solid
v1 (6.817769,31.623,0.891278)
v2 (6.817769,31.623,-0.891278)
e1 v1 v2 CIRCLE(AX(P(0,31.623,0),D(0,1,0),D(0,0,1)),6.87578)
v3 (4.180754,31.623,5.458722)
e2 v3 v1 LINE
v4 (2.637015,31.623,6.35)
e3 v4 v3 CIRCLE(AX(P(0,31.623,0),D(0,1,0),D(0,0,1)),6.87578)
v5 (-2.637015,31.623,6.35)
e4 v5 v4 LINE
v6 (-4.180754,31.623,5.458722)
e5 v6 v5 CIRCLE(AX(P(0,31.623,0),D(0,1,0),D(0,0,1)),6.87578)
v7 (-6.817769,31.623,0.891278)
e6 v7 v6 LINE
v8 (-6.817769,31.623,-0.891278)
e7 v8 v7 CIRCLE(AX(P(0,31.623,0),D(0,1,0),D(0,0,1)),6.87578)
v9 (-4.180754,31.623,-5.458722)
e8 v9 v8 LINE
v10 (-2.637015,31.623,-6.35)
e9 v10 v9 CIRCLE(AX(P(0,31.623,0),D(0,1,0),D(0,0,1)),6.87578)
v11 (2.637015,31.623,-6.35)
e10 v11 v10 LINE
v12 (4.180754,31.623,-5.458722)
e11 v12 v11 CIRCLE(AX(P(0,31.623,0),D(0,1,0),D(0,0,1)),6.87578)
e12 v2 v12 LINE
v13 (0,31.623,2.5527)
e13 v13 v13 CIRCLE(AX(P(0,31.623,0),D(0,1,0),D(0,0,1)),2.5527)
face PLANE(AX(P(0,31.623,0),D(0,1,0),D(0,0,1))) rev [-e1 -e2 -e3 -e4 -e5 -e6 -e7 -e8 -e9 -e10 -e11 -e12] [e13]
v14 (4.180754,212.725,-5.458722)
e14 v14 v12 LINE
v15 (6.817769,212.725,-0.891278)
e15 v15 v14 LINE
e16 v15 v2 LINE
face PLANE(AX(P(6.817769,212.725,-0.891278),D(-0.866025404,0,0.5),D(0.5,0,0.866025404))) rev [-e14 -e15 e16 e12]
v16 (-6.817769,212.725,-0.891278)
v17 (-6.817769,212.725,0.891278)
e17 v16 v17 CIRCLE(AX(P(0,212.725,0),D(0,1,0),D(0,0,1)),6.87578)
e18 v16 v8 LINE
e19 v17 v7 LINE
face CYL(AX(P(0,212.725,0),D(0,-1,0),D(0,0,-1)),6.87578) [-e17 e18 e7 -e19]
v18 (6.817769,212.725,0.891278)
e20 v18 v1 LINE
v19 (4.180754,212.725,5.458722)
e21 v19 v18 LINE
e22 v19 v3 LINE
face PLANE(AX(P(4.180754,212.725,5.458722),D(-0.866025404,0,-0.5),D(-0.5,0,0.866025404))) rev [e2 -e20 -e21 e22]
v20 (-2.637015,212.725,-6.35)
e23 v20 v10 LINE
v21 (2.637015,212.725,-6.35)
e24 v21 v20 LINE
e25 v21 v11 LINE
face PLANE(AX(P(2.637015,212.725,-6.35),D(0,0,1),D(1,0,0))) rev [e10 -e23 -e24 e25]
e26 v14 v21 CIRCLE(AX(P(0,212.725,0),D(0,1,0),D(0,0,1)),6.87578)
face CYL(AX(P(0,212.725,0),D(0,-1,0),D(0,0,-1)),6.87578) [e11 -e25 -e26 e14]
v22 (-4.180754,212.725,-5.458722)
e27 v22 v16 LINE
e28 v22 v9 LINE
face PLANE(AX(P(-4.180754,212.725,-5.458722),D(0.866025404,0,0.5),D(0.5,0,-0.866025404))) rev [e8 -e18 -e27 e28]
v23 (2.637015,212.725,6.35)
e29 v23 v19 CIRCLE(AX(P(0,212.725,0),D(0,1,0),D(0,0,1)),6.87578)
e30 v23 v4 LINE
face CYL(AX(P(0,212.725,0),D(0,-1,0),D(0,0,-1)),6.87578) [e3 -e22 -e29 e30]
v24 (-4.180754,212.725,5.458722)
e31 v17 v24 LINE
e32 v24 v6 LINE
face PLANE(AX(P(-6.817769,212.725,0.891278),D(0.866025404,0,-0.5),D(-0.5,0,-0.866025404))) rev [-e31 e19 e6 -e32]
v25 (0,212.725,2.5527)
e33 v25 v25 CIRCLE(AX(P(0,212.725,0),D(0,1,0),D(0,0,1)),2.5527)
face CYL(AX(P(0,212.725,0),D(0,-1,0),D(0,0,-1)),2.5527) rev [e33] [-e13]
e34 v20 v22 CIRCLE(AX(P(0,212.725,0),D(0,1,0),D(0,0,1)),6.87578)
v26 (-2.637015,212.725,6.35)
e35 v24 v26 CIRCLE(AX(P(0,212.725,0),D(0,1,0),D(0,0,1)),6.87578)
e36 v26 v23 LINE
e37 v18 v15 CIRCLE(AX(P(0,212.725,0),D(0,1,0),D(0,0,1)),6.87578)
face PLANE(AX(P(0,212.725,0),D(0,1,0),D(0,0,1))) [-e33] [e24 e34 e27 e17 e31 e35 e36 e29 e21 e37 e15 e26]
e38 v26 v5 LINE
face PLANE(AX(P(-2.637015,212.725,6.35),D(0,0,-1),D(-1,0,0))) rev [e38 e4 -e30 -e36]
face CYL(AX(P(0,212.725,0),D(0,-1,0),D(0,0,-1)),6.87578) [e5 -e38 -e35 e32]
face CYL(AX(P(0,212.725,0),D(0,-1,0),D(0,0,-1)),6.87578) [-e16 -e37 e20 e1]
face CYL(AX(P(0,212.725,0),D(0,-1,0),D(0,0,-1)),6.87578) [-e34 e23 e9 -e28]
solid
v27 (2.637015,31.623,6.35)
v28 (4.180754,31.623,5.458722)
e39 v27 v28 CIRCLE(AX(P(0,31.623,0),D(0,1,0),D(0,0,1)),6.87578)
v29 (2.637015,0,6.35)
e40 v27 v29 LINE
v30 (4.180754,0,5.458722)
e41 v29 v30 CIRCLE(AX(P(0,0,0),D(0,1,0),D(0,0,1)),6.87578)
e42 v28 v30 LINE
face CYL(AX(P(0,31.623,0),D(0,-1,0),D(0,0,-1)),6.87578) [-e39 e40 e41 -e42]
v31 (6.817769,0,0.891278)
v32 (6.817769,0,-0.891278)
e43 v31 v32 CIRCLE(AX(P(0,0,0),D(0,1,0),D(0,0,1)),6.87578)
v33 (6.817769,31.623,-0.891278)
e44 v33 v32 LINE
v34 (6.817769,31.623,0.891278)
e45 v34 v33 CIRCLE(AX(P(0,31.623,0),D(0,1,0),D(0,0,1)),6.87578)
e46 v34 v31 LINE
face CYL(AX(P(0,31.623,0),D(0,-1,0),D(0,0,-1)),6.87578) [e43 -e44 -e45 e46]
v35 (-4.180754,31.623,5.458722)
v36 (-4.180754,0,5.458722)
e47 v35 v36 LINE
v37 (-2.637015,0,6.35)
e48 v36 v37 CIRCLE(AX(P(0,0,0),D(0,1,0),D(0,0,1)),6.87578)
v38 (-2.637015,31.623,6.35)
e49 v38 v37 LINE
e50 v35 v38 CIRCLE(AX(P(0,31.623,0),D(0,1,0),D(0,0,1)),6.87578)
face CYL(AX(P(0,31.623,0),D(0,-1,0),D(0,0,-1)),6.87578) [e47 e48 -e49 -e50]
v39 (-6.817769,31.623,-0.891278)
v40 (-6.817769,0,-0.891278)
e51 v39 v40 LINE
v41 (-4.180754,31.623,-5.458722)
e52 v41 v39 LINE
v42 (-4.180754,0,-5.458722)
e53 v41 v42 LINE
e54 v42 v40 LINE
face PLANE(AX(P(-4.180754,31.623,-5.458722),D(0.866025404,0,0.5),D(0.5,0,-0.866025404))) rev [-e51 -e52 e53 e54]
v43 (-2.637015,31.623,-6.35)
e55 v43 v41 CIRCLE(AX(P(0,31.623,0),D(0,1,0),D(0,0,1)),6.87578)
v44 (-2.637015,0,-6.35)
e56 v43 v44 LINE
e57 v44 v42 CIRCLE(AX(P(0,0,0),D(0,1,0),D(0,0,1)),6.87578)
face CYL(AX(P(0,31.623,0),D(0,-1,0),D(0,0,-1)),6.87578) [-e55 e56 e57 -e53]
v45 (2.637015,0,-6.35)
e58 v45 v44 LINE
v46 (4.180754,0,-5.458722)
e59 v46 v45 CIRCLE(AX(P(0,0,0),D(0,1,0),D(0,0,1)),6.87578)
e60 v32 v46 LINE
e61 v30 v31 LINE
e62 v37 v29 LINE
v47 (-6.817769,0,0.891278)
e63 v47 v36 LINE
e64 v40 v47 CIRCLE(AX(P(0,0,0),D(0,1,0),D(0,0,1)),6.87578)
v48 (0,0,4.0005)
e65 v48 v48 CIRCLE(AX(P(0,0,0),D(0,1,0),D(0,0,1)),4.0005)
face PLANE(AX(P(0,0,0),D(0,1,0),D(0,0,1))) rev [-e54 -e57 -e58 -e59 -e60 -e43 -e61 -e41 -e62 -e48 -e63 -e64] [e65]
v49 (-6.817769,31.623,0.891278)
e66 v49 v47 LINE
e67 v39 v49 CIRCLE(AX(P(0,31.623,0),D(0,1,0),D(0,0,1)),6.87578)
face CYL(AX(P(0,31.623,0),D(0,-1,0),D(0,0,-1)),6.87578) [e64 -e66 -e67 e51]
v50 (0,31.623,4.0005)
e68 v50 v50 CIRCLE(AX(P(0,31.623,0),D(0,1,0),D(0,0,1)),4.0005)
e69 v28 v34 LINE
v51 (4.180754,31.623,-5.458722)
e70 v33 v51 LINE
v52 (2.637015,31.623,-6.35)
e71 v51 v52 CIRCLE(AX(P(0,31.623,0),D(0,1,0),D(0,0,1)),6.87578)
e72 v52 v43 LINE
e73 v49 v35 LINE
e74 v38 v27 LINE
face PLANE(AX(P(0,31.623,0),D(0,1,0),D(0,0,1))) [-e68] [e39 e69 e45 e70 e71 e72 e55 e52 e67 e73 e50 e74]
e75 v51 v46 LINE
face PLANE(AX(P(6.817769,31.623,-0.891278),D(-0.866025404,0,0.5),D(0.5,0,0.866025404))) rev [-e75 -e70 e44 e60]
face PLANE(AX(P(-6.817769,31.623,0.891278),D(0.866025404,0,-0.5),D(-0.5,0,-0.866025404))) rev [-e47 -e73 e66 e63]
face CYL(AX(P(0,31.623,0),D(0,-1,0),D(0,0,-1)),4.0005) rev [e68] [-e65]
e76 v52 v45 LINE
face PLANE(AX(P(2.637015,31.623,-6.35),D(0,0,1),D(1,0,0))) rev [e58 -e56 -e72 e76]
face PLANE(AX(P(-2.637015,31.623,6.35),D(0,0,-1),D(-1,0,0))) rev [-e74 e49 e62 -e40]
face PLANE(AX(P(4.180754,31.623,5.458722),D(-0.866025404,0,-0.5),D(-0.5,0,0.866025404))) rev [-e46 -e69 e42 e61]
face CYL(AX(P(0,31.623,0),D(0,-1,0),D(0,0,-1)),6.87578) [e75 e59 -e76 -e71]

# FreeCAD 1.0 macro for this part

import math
import FreeCAD as App
import Part
import Sketcher
Q = App.Units.Quantity

doc = App.newDocument("Part")
body = doc.addObject("PartDesign::Body", "Body")

# Sketch on XZ plane
sketch1 = body.newObject("Sketcher::SketchObject", "Sketch")
sketch1.AttachmentSupport = (doc.getObject("XZ_Plane"), [""])
sketch1.MapMode = "FlatFace"
sketch1.addGeometry(Part.LineSegment(App.Vector(6.8, -0.9, 0), App.Vector(4.2, -5.5, 0)), False)
sketch1.addGeometry(Part.ArcOfCircle(Part.Circle(App.Vector(0, 0, 0), App.Vector(0, 0, 1), 6.9), math.radians(-67.45), math.radians(-52.55)), False)
sketch1.addGeometry(Part.LineSegment(App.Vector(2.6, -6.3, 0), App.Vector(-2.6, -6.3, 0)), False)
sketch1.addGeometry(Part.ArcOfCircle(Part.Circle(App.Vector(0, 0, 0), App.Vector(0, 0, 1), 6.9), math.radians(-127.45), math.radians(-112.55)), False)
sketch1.addGeometry(Part.LineSegment(App.Vector(-4.2, -5.5, 0), App.Vector(-6.8, -0.9, 0)), False)
sketch1.addGeometry(Part.ArcOfCircle(Part.Circle(App.Vector(0, 0, 0), App.Vector(0, 0, 1), 6.9), math.radians(172.55), math.radians(187.45)), False)
sketch1.addGeometry(Part.LineSegment(App.Vector(-6.8, 0.9, 0), App.Vector(-4.2, 5.5, 0)), False)
sketch1.addGeometry(Part.ArcOfCircle(Part.Circle(App.Vector(0, 0, 0), App.Vector(0, 0, 1), 6.9), math.radians(112.55), math.radians(127.45)), False)
sketch1.addGeometry(Part.LineSegment(App.Vector(-2.6, 6.3, 0), App.Vector(2.6, 6.3, 0)), False)
sketch1.addGeometry(Part.ArcOfCircle(Part.Circle(App.Vector(0, 0, 0), App.Vector(0, 0, 1), 6.9), math.radians(52.55), math.radians(67.45)), False)
sketch1.addGeometry(Part.LineSegment(App.Vector(4.2, 5.5, 0), App.Vector(6.8, 0.9, 0)), False)
sketch1.addGeometry(Part.ArcOfCircle(Part.Circle(App.Vector(0, 0, 0), App.Vector(0, 0, 1), 6.9), math.radians(-7.45), math.radians(7.45)), False)
sketch1.addGeometry(Part.Circle(App.Vector(0, 0, 0), App.Vector(0, 0, 1), 4), False)
sketch1.addConstraint(Sketcher.Constraint("Coincident", 0, 2, 1, 2))
sketch1.addConstraint(Sketcher.Constraint("Coincident", 1, 1, 2, 1))
sketch1.addConstraint(Sketcher.Constraint("Coincident", 2, 2, 3, 2))
sketch1.addConstraint(Sketcher.Constraint("Coincident", 3, 1, 4, 1))
sketch1.addConstraint(Sketcher.Constraint("Coincident", 4, 2, 5, 2))
sketch1.addConstraint(Sketcher.Constraint("Coincident", 5, 1, 6, 1))
sketch1.addConstraint(Sketcher.Constraint("Coincident", 6, 2, 7, 2))
sketch1.addConstraint(Sketcher.Constraint("Coincident", 7, 1, 8, 1))
sketch1.addConstraint(Sketcher.Constraint("Coincident", 8, 2, 9, 2))
sketch1.addConstraint(Sketcher.Constraint("Coincident", 9, 1, 10, 1))
sketch1.addConstraint(Sketcher.Constraint("Coincident", 10, 2, 11, 2))
sketch1.addConstraint(Sketcher.Constraint("Coincident", 11, 1, 0, 1))
sketch1.addConstraint(Sketcher.Constraint("Horizontal", 2))
sketch1.addConstraint(Sketcher.Constraint("Horizontal", 8))
sketch1.addConstraint(Sketcher.Constraint("Coincident", 1, 3, -1, 1))
sketch1.addConstraint(Sketcher.Constraint("Coincident", 3, 3, -1, 1))
sketch1.addConstraint(Sketcher.Constraint("Coincident", 5, 3, -1, 1))
sketch1.addConstraint(Sketcher.Constraint("Coincident", 7, 3, -1, 1))
sketch1.addConstraint(Sketcher.Constraint("Coincident", 9, 3, -1, 1))
sketch1.addConstraint(Sketcher.Constraint("Coincident", 11, 3, -1, 1))
sketch1.addConstraint(Sketcher.Constraint("Coincident", 12, 3, -1, 1))
sketch1.addConstraint(Sketcher.Constraint("Equal", 1, 3))
sketch1.addConstraint(Sketcher.Constraint("Equal", 3, 5))
sketch1.addConstraint(Sketcher.Constraint("Equal", 5, 7))
sketch1.addConstraint(Sketcher.Constraint("Equal", 7, 9))
sketch1.addConstraint(Sketcher.Constraint("Equal", 9, 11))
sketch1.addConstraint(Sketcher.Constraint("Parallel", 0, 6))
sketch1.addConstraint(Sketcher.Constraint("Parallel", 4, 10))
sketch1.addConstraint(Sketcher.Constraint("Horizontal", 0, 2, 3, 1))
sketch1.addConstraint(Sketcher.Constraint("Horizontal", 6, 2, 9, 1))
sketch1.addConstraint(Sketcher.Constraint("Horizontal", 5, 1, 10, 2))
sketch1.addConstraint(Sketcher.Constraint("Vertical", 4, 2, 5, 1))
sketch1.addConstraint(Sketcher.Constraint("Vertical", 2, 2, 7, 1))
sketch1.addConstraint(Sketcher.Constraint("Diameter", 12, Q("0.315 in")))
sketch1.addConstraint(Sketcher.Constraint("Angle", 0, Q("-120 deg")))
sketch1.addConstraint(Sketcher.Constraint("Radius", 1, Q("0.2707 in")))
sketch1.addConstraint(Sketcher.Constraint("DistanceY", 1, 1, -1, 1, Q("0.25 in")))
sketch1.addConstraint(Sketcher.Constraint("Distance", 0, Q("5.274031 mm")))
pad1 = body.newObject("PartDesign::Pad", "Pad")
pad1.Profile = sketch1
pad1.Length = Q("1.245 in")
pad1.Reversed = True
body2 = doc.addObject("PartDesign::Body", "Body001")

# Sketch on XZ plane
sketch2 = body2.newObject("Sketcher::SketchObject", "Sketch001")
sketch2.AttachmentSupport = (doc.getObject("XZ_Plane001"), [""])
sketch2.MapMode = "FlatFace"
sketch2.AttachmentOffset = App.Placement(App.Vector(0, 0, -1.245 * 25.4), App.Rotation())
sketch2.addGeometry(Part.LineSegment(App.Vector(2.6, -6.3, 0), App.Vector(-2.6, -6.3, 0)), False)
sketch2.addGeometry(Part.ArcOfCircle(Part.Circle(App.Vector(0, 0, 0), App.Vector(0, 0, 1), 6.9), math.radians(-127.45), math.radians(-112.55)), False)
sketch2.addGeometry(Part.LineSegment(App.Vector(-4.2, -5.5, 0), App.Vector(-6.8, -0.9, 0)), False)
sketch2.addGeometry(Part.ArcOfCircle(Part.Circle(App.Vector(0, 0, 0), App.Vector(0, 0, 1), 6.9), math.radians(172.55), math.radians(187.45)), False)
sketch2.addGeometry(Part.LineSegment(App.Vector(-6.8, 0.9, 0), App.Vector(-4.2, 5.5, 0)), False)
sketch2.addGeometry(Part.ArcOfCircle(Part.Circle(App.Vector(0, 0, 0), App.Vector(0, 0, 1), 6.9), math.radians(112.55), math.radians(127.45)), False)
sketch2.addGeometry(Part.LineSegment(App.Vector(-2.6, 6.3, 0), App.Vector(2.6, 6.3, 0)), False)
sketch2.addGeometry(Part.ArcOfCircle(Part.Circle(App.Vector(0, 0, 0), App.Vector(0, 0, 1), 6.9), math.radians(52.55), math.radians(67.45)), False)
sketch2.addGeometry(Part.LineSegment(App.Vector(4.2, 5.5, 0), App.Vector(6.8, 0.9, 0)), False)
sketch2.addGeometry(Part.ArcOfCircle(Part.Circle(App.Vector(0, 0, 0), App.Vector(0, 0, 1), 6.9), math.radians(-7.45), math.radians(7.45)), False)
sketch2.addGeometry(Part.LineSegment(App.Vector(6.8, -0.9, 0), App.Vector(4.2, -5.5, 0)), False)
sketch2.addGeometry(Part.ArcOfCircle(Part.Circle(App.Vector(0, 0, 0), App.Vector(0, 0, 1), 6.9), math.radians(-67.45), math.radians(-52.55)), False)
sketch2.addGeometry(Part.Circle(App.Vector(0, 0, 0), App.Vector(0, 0, 1), 2.6), False)
sketch2.addConstraint(Sketcher.Constraint("Coincident", 0, 2, 1, 2))
sketch2.addConstraint(Sketcher.Constraint("Coincident", 1, 1, 2, 1))
sketch2.addConstraint(Sketcher.Constraint("Coincident", 2, 2, 3, 2))
sketch2.addConstraint(Sketcher.Constraint("Coincident", 3, 1, 4, 1))
sketch2.addConstraint(Sketcher.Constraint("Coincident", 4, 2, 5, 2))
sketch2.addConstraint(Sketcher.Constraint("Coincident", 5, 1, 6, 1))
sketch2.addConstraint(Sketcher.Constraint("Coincident", 6, 2, 7, 2))
sketch2.addConstraint(Sketcher.Constraint("Coincident", 7, 1, 8, 1))
sketch2.addConstraint(Sketcher.Constraint("Coincident", 8, 2, 9, 2))
sketch2.addConstraint(Sketcher.Constraint("Coincident", 9, 1, 10, 1))
sketch2.addConstraint(Sketcher.Constraint("Coincident", 10, 2, 11, 2))
sketch2.addConstraint(Sketcher.Constraint("Coincident", 11, 1, 0, 1))
sketch2.addConstraint(Sketcher.Constraint("Horizontal", 0))
sketch2.addConstraint(Sketcher.Constraint("Horizontal", 6))
sketch2.addConstraint(Sketcher.Constraint("Coincident", 1, 3, -1, 1))
sketch2.addConstraint(Sketcher.Constraint("Coincident", 3, 3, -1, 1))
sketch2.addConstraint(Sketcher.Constraint("Coincident", 5, 3, -1, 1))
sketch2.addConstraint(Sketcher.Constraint("Coincident", 7, 3, -1, 1))
sketch2.addConstraint(Sketcher.Constraint("Coincident", 9, 3, -1, 1))
sketch2.addConstraint(Sketcher.Constraint("Coincident", 11, 3, -1, 1))
sketch2.addConstraint(Sketcher.Constraint("Coincident", 12, 3, -1, 1))
sketch2.addConstraint(Sketcher.Constraint("Equal", 1, 3))
sketch2.addConstraint(Sketcher.Constraint("Equal", 3, 5))
sketch2.addConstraint(Sketcher.Constraint("Equal", 5, 7))
sketch2.addConstraint(Sketcher.Constraint("Equal", 7, 9))
sketch2.addConstraint(Sketcher.Constraint("Equal", 9, 11))
sketch2.addConstraint(Sketcher.Constraint("Parallel", 2, 8))
sketch2.addConstraint(Sketcher.Constraint("Parallel", 4, 10))
sketch2.addConstraint(Sketcher.Constraint("Horizontal", 4, 2, 7, 1))
sketch2.addConstraint(Sketcher.Constraint("Horizontal", 3, 1, 8, 2))
sketch2.addConstraint(Sketcher.Constraint("Horizontal", 2, 2, 9, 1))
sketch2.addConstraint(Sketcher.Constraint("Vertical", 2, 2, 3, 1))
sketch2.addConstraint(Sketcher.Constraint("Vertical", 0, 2, 5, 1))
sketch2.addConstraint(Sketcher.Constraint("Diameter", 12, Q("0.201 in")))
sketch2.addConstraint(Sketcher.Constraint("Angle", 2, Q("120 deg")))
sketch2.addConstraint(Sketcher.Constraint("Radius", 1, Q("0.2707 in")))
sketch2.addConstraint(Sketcher.Constraint("DistanceY", 0, 2, -1, 1, Q("0.25 in")))
sketch2.addConstraint(Sketcher.Constraint("Distance", 2, Q("5.274031 mm")))
pad2 = body2.newObject("PartDesign::Pad", "Pad001")
pad2.Profile = sketch2
pad2.Length = Q("7.13 in")
pad2.Reversed = True

doc.recompute()
